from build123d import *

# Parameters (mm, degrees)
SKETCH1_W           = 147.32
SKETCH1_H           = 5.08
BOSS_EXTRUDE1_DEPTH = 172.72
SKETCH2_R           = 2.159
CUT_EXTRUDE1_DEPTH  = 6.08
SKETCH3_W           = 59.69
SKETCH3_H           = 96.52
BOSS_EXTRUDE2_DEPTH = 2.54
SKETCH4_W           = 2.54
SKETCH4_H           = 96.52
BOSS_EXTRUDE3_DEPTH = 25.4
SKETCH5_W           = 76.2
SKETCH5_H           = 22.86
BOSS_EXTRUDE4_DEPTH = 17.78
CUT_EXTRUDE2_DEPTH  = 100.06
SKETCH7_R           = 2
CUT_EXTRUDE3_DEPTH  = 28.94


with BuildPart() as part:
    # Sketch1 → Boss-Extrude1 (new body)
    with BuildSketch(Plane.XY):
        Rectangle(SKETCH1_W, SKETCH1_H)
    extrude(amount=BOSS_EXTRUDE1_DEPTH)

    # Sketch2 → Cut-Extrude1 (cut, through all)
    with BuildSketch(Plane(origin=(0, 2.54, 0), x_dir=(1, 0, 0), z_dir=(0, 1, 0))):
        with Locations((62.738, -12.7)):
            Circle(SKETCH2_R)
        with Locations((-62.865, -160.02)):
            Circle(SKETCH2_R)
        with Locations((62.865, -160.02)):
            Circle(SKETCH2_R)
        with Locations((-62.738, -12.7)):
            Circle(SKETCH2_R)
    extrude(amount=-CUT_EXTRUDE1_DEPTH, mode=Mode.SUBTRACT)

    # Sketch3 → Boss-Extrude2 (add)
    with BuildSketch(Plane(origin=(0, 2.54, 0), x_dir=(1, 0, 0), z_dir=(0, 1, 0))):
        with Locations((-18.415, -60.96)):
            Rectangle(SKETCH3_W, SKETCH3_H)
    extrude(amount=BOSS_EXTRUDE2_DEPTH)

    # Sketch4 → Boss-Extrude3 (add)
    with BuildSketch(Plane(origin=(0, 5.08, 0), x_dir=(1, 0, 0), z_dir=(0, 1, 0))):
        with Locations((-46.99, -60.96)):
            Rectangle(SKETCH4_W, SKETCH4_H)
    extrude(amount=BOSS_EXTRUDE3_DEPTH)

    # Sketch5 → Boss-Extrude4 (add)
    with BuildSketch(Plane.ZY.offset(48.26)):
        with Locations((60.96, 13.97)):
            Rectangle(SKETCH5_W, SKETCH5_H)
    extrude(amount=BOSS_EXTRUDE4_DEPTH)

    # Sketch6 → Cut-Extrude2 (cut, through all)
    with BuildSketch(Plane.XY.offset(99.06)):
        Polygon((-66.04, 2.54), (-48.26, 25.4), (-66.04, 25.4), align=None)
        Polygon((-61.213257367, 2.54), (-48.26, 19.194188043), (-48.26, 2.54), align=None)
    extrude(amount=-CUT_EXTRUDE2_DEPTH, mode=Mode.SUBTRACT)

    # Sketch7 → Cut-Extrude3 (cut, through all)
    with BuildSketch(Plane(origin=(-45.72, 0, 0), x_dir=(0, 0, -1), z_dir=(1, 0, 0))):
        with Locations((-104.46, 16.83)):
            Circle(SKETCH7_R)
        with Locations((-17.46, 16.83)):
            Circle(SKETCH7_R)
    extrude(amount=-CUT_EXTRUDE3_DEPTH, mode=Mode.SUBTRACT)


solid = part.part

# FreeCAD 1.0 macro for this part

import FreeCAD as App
import Part
import Sketcher

V = App.Vector
Q = App.Units.Quantity

doc = App.newDocument("Part")
body = doc.addObject("PartDesign::Body", "Body")

# Sketch on XY plane
sketch1 = body.newObject("Sketcher::SketchObject", "Sketch")
sketch1.AttachmentSupport = (doc.getObject("XY_Plane"), [""])
sketch1.MapMode = "FlatFace"
sketch1.addGeometry([
    Part.LineSegment(V(-73.66, 2.54, 0), V(-73.66, -2.54, 0)),
    Part.LineSegment(V(-73.66, -2.54, 0), V(73.66, -2.54, 0)),
    Part.LineSegment(V(73.66, -2.54, 0), V(73.66, 2.54, 0)),
    Part.LineSegment(V(73.66, 2.54, 0), V(-73.66, 2.54, 0)),
], False)
sketch1.addConstraint([
    Sketcher.Constraint("Coincident", 0, 2, 1, 1),
    Sketcher.Constraint("Coincident", 1, 2, 2, 1),
    Sketcher.Constraint("Coincident", 2, 2, 3, 1),
    Sketcher.Constraint("Coincident", 3, 2, 0, 1),
    Sketcher.Constraint("Vertical", 0),
    Sketcher.Constraint("Horizontal", 1),
    Sketcher.Constraint("Vertical", 2),
    Sketcher.Constraint("Horizontal", 3),
    Sketcher.Constraint("Symmetric", 0, 2, 2, 2, -1, 1),
    Sketcher.Constraint("DistanceX", 1, 1, 1, 2, Q("5.8 in")),
    Sketcher.Constraint("DistanceY", 0, 2, 0, 1, Q("0.2 in")),
])
pad1 = body.newObject("PartDesign::Pad", "Pad")
pad1.Profile = sketch1
pad1.Length = Q("6.8 in")

# Sketch on XZ plane
sketch2 = body.newObject("Sketcher::SketchObject", "Sketch001")
sketch2.AttachmentSupport = (doc.getObject("XZ_Plane"), [""])
sketch2.MapMode = "FlatFace"
sketch2.AttachmentOffset = App.Placement(V(0, 0, -0.1 * 25.4), App.Rotation())
sketch2.addGeometry([
    Part.Circle(V(62.738, 12.7, 0), V(0, 0, 1), 2.159),
    Part.Circle(V(-62.865, 160.02, 0), V(0, 0, 1), 2.159),
    Part.Circle(V(62.865, 160.02, 0), V(0, 0, 1), 2.159),
    Part.Circle(V(-62.738, 12.7, 0), V(0, 0, 1), 2.159),
], False)
sketch2.addConstraint([
    Sketcher.Constraint("Equal", 0, 1),
    Sketcher.Constraint("Equal", 1, 2),
    Sketcher.Constraint("Equal", 2, 3),
    Sketcher.Constraint("Symmetric", 1, 3, 2, 3, -2),
    Sketcher.Constraint("Symmetric", 0, 3, 3, 3, -2),
    Sketcher.Constraint("Diameter", 0, Q("0.17 in")),
    Sketcher.Constraint("DistanceY", -1, 1, 0, 3, Q("0.5 in")),
    Sketcher.Constraint("DistanceY", -1, 1, 1, 3, Q("6.3 in")),
    Sketcher.Constraint("DistanceX", -1, 1, 0, 3, Q("2.47 in")),
    Sketcher.Constraint("DistanceX", 1, 3, 2, 3, Q("4.95 in")),
])
pocket1 = body.newObject("PartDesign::Pocket", "Pocket")
pocket1.Profile = sketch2
pocket1.Type = "ThroughAll"
pocket1.Reversed = True

# Sketch on XZ plane
sketch3 = body.newObject("Sketcher::SketchObject", "Sketch002")
sketch3.AttachmentSupport = (doc.getObject("XZ_Plane"), [""])
sketch3.MapMode = "FlatFace"
sketch3.AttachmentOffset = App.Placement(V(0, 0, -0.1 * 25.4), App.Rotation())
sketch3.addGeometry([
    Part.LineSegment(V(-48.26, 12.7, 0), V(-48.26, 109.22, 0)),
    Part.LineSegment(V(-48.26, 109.22, 0), V(11.43, 109.22, 0)),
    Part.LineSegment(V(11.43, 109.22, 0), V(11.43, 12.7, 0)),
    Part.LineSegment(V(11.43, 12.7, 0), V(-48.26, 12.7, 0)),
], False)
sketch3.addConstraint([
    Sketcher.Constraint("Coincident", 0, 2, 1, 1),
    Sketcher.Constraint("Coincident", 1, 2, 2, 1),
    Sketcher.Constraint("Coincident", 2, 2, 3, 1),
    Sketcher.Constraint("Coincident", 3, 2, 0, 1),
    Sketcher.Constraint("Vertical", 0),
    Sketcher.Constraint("Horizontal", 1),
    Sketcher.Constraint("Vertical", 2),
    Sketcher.Constraint("Horizontal", 3),
    Sketcher.Constraint("DistanceY", 0, 1, 0, 2, Q("3.8 in")),
    Sketcher.Constraint("DistanceX", 1, 1, 1, 2, Q("2.35 in")),
    Sketcher.Constraint("DistanceX", 0, 2, -1, 1, Q("1.9 in")),
    Sketcher.Constraint("DistanceY", -1, 1, 0, 2, Q("4.3 in")),
])
pad2 = body.newObject("PartDesign::Pad", "Pad001")
pad2.Profile = sketch3
pad2.Length = Q("0.1 in")
pad2.Reversed = True

# Sketch on XZ plane
sketch4 = body.newObject("Sketcher::SketchObject", "Sketch003")
sketch4.AttachmentSupport = (doc.getObject("XZ_Plane"), [""])
sketch4.MapMode = "FlatFace"
sketch4.AttachmentOffset = App.Placement(V(0, 0, -0.2 * 25.4), App.Rotation())
sketch4.addGeometry([
    Part.LineSegment(V(-48.26, 12.7, 0), V(-48.26, 109.22, 0)),
    Part.LineSegment(V(-48.26, 109.22, 0), V(-45.72, 109.22, 0)),
    Part.LineSegment(V(-45.72, 109.22, 0), V(-45.72, 12.7, 0)),
    Part.LineSegment(V(-45.72, 12.7, 0), V(-48.26, 12.7, 0)),
], False)
sketch4.addConstraint([
    Sketcher.Constraint("Coincident", 0, 2, 1, 1),
    Sketcher.Constraint("Coincident", 1, 2, 2, 1),
    Sketcher.Constraint("Coincident", 2, 2, 3, 1),
    Sketcher.Constraint("Coincident", 3, 2, 0, 1),
    Sketcher.Constraint("Vertical", 0),
    Sketcher.Constraint("Horizontal", 1),
    Sketcher.Constraint("Vertical", 2),
    Sketcher.Constraint("Horizontal", 3),
    Sketcher.Constraint("DistanceX", 1, 1, 1, 2, Q("0.1 in")),
    Sketcher.Constraint("DistanceY", 0, 1, 0, 2, Q("3.8 in")),
    Sketcher.Constraint("DistanceX", 0, 2, -1, 1, Q("1.9 in")),
    Sketcher.Constraint("DistanceY", -1, 1, 0, 2, Q("4.3 in")),
])
pad3 = body.newObject("PartDesign::Pad", "Pad002")
pad3.Profile = sketch4
pad3.Length = Q("1 in")
pad3.Reversed = True

# Sketch on YZ plane
sketch5 = body.newObject("Sketcher::SketchObject", "Sketch004")
sketch5.AttachmentSupport = (doc.getObject("YZ_Plane"), [""])
sketch5.MapMode = "FlatFace"
sketch5.AttachmentOffset = App.Placement(V(0, 0, -1.9 * 25.4), App.Rotation())
sketch5.addGeometry([
    Part.LineSegment(V(25.4, 22.86, 0), V(2.54, 22.86, 0)),
    Part.LineSegment(V(2.54, 22.86, 0), V(2.54, 99.06, 0)),
    Part.LineSegment(V(2.54, 99.06, 0), V(25.4, 99.06, 0)),
    Part.LineSegment(V(25.4, 99.06, 0), V(25.4, 22.86, 0)),
], False)
sketch5.addConstraint([
    Sketcher.Constraint("Coincident", 0, 2, 1, 1),
    Sketcher.Constraint("Coincident", 1, 2, 2, 1),
    Sketcher.Constraint("Coincident", 2, 2, 3, 1),
    Sketcher.Constraint("Coincident", 3, 2, 0, 1),
    Sketcher.Constraint("Horizontal", 0),
    Sketcher.Constraint("Vertical", 1),
    Sketcher.Constraint("Horizontal", 2),
    Sketcher.Constraint("Vertical", 3),
    Sketcher.Constraint("DistanceY", 1, 1, 1, 2, Q("3 in")),
    Sketcher.Constraint("DistanceX", 0, 2, 0, 1, Q("0.9 in")),
    Sketcher.Constraint("DistanceX", -1, 1, 2, 2, Q("1 in")),
    Sketcher.Constraint("DistanceY", -1, 1, 0, 2, Q("0.9 in")),
])
pad4 = body.newObject("PartDesign::Pad", "Pad003")
pad4.Profile = sketch5
pad4.Length = Q("0.7 in")
pad4.Reversed = True

# Sketch on XY plane
sketch6 = body.newObject("Sketcher::SketchObject", "Sketch005")
sketch6.AttachmentSupport = (doc.getObject("XY_Plane"), [""])
sketch6.MapMode = "FlatFace"
sketch6.AttachmentOffset = App.Placement(V(0, 0, 3.9 * 25.4), App.Rotation())
sketch6.addGeometry([
    Part.LineSegment(V(-66.04, 2.54, 0), V(-48.26, 25.4, 0)),  # 0
    Part.LineSegment(V(-48.26, 25.4, 0), V(-66.04, 25.4, 0)),  # 1
    Part.LineSegment(V(-66.04, 25.4, 0), V(-66.04, 2.54, 0)),  # 2
    Part.LineSegment(V(-48.26, 19.194188, 0), V(-61.213257, 2.54, 0)),  # 3
    Part.LineSegment(V(-61.213257, 2.54, 0), V(-48.26, 2.54, 0)),  # 4
    Part.LineSegment(V(-48.26, 2.54, 0), V(-48.26, 19.194188, 0)),  # 5
], False)
sketch6.addConstraint([
    Sketcher.Constraint("Coincident", 0, 2, 1, 1),
    Sketcher.Constraint("Coincident", 1, 2, 2, 1),
    Sketcher.Constraint("Coincident", 2, 2, 0, 1),
    Sketcher.Constraint("Coincident", 3, 2, 4, 1),
    Sketcher.Constraint("Coincident", 4, 2, 5, 1),
    Sketcher.Constraint("Coincident", 5, 2, 3, 1),
    Sketcher.Constraint("Horizontal", 1),
    Sketcher.Constraint("Vertical", 2),
    Sketcher.Constraint("Horizontal", 4),
    Sketcher.Constraint("Vertical", 5),
    Sketcher.Constraint("Parallel", 0, 3),
    Sketcher.Constraint("Horizontal", 2, 2, 3, 2),
    Sketcher.Constraint("Vertical", 0, 2, 4, 2),
    Sketcher.Constraint("DistanceX", 1, 2, 1, 1, Q("0.7 in")),
    Sketcher.Constraint("DistanceY", 2, 2, 2, 1, Q("0.9 in")),
    Sketcher.Constraint("DistanceY", -1, 1, 0, 2, Q("1 in")),
    Sketcher.Constraint("DistanceX", 0, 2, -1, 1, Q("1.9 in")),
    Sketcher.Constraint("DistanceY", 5, 1, 5, 2, Q("16.654188 mm")),
])
pocket2 = body.newObject("PartDesign::Pocket", "Pocket001")
pocket2.Profile = sketch6
pocket2.Type = "ThroughAll"

# Sketch on YZ plane
sketch7 = body.newObject("Sketcher::SketchObject", "Sketch006")
sketch7.AttachmentSupport = (doc.getObject("YZ_Plane"), [""])
sketch7.MapMode = "FlatFace"
sketch7.AttachmentOffset = App.Placement(V(0, 0, -1.8 * 25.4), App.Rotation())
sketch7.addGeometry([
    Part.Circle(V(16.83, 104.46, 0), V(0, 0, 1), 2),
    Part.Circle(V(16.83, 17.46, 0), V(0, 0, 1), 2),
], False)
sketch7.addConstraint([
    Sketcher.Constraint("Equal", 0, 1),
    Sketcher.Constraint("Vertical", 0, 3, 1, 3),
    Sketcher.Constraint("Diameter", 0, Q("4 mm")),
    Sketcher.Constraint("DistanceX", -1, 1, 0, 3, Q("16.83 mm")),
    Sketcher.Constraint("DistanceY", -1, 1, 0, 3, Q("104.46 mm")),
    Sketcher.Constraint("DistanceY", -1, 1, 1, 3, Q("17.46 mm")),
])
pocket3 = body.newObject("PartDesign::Pocket", "Pocket002")
pocket3.Profile = sketch7
pocket3.Type = "ThroughAll"

doc.recompute()
